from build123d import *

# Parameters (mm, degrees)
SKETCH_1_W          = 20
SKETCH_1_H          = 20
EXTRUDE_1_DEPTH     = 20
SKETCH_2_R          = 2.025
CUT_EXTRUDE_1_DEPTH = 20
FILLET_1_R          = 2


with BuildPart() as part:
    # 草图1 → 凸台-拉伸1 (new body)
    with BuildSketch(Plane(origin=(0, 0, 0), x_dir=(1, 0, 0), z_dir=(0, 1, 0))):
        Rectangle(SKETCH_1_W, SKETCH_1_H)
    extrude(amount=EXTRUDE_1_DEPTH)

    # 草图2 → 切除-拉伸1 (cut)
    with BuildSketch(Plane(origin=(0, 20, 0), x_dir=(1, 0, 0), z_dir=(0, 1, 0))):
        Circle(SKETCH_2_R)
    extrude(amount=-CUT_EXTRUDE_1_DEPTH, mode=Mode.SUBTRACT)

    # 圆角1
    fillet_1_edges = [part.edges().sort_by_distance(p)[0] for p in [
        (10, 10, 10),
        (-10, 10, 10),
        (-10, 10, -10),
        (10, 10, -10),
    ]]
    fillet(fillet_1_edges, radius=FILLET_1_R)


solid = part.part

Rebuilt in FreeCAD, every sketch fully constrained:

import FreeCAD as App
import Part
import Sketcher
Q = App.Units.Quantity


def edges_at(feature, points):
    """Names of the edges that pass closest to the given points."""
    edges = feature.Shape.Edges
    near = lambda p: min(range(len(edges)), key=lambda i: edges[i].distToShape(Part.Vertex(*p))[0])
    return sorted({f"Edge{near(p) + 1}" for p in points})


def add_polygon(sketch, points):
    """Adds a closed chain of lines whose ends are joined by coincident constraints."""
    first, n = sketch.GeometryCount, len(points)
    for a, b in zip(points, points[1:] + points[:1]):
        sketch.addGeometry(Part.LineSegment(App.Vector(*a, 0), App.Vector(*b, 0)), False)
    for i in range(n):
        sketch.addConstraint(Sketcher.Constraint("Coincident", first + i, 2, first + (i + 1) % n, 1))

doc = App.newDocument("Part")
body = doc.addObject("PartDesign::Body", "Body")

# Sketch on XZ plane
sketch1 = body.newObject("Sketcher::SketchObject", "Sketch")
sketch1.AttachmentSupport = (doc.getObject("XZ_Plane"), [""])
sketch1.MapMode = "FlatFace"
add_polygon(sketch1, [(-10, -10), (-10, 10), (10, 10), (10, -10)])  # lines 0-3
sketch1.addConstraint([
    Sketcher.Constraint("Vertical", 0),
    Sketcher.Constraint("Horizontal", 1),
    Sketcher.Constraint("Vertical", 2),
    Sketcher.Constraint("Horizontal", 3),
    Sketcher.Constraint("Symmetric", 0, 2, 2, 2, -1, 1),
    Sketcher.Constraint("Equal", 3, 0),
    Sketcher.Constraint("DistanceX", 1, 1, 1, 2, Q("20 mm")),
])
pad1 = body.newObject("PartDesign::Pad", "Pad")
pad1.Profile = sketch1
pad1.Length = 20
pad1.Reversed = True

# Sketch on XZ plane
sketch2 = body.newObject("Sketcher::SketchObject", "Sketch001")
sketch2.AttachmentSupport = (doc.getObject("XZ_Plane"), [""])
sketch2.MapMode = "FlatFace"
sketch2.AttachmentOffset = App.Placement(App.Vector(0, 0, -20), App.Rotation())
sketch2.addGeometry(Part.Circle(App.Vector(0, 0, 0), App.Vector(0, 0, 1), 2.025), False)
sketch2.addConstraint([
    Sketcher.Constraint("Coincident", 0, 3, -1, 1),
    Sketcher.Constraint("Diameter", 0, Q("4.05 mm")),
])
pocket1 = body.newObject("PartDesign::Pocket", "Pocket")
pocket1.Profile = sketch2
pocket1.Length = 20
pocket1.Reversed = True
doc.recompute()

fillet = body.newObject("PartDesign::Fillet", "Fillet")
fillet.Base = (pocket1, edges_at(pocket1, [
    (10, 10, 10),
    (-10, 10, 10),
    (-10, 10, -10),
    (10, 10, -10),
]))
fillet.Radius = 2

doc.recompute()
